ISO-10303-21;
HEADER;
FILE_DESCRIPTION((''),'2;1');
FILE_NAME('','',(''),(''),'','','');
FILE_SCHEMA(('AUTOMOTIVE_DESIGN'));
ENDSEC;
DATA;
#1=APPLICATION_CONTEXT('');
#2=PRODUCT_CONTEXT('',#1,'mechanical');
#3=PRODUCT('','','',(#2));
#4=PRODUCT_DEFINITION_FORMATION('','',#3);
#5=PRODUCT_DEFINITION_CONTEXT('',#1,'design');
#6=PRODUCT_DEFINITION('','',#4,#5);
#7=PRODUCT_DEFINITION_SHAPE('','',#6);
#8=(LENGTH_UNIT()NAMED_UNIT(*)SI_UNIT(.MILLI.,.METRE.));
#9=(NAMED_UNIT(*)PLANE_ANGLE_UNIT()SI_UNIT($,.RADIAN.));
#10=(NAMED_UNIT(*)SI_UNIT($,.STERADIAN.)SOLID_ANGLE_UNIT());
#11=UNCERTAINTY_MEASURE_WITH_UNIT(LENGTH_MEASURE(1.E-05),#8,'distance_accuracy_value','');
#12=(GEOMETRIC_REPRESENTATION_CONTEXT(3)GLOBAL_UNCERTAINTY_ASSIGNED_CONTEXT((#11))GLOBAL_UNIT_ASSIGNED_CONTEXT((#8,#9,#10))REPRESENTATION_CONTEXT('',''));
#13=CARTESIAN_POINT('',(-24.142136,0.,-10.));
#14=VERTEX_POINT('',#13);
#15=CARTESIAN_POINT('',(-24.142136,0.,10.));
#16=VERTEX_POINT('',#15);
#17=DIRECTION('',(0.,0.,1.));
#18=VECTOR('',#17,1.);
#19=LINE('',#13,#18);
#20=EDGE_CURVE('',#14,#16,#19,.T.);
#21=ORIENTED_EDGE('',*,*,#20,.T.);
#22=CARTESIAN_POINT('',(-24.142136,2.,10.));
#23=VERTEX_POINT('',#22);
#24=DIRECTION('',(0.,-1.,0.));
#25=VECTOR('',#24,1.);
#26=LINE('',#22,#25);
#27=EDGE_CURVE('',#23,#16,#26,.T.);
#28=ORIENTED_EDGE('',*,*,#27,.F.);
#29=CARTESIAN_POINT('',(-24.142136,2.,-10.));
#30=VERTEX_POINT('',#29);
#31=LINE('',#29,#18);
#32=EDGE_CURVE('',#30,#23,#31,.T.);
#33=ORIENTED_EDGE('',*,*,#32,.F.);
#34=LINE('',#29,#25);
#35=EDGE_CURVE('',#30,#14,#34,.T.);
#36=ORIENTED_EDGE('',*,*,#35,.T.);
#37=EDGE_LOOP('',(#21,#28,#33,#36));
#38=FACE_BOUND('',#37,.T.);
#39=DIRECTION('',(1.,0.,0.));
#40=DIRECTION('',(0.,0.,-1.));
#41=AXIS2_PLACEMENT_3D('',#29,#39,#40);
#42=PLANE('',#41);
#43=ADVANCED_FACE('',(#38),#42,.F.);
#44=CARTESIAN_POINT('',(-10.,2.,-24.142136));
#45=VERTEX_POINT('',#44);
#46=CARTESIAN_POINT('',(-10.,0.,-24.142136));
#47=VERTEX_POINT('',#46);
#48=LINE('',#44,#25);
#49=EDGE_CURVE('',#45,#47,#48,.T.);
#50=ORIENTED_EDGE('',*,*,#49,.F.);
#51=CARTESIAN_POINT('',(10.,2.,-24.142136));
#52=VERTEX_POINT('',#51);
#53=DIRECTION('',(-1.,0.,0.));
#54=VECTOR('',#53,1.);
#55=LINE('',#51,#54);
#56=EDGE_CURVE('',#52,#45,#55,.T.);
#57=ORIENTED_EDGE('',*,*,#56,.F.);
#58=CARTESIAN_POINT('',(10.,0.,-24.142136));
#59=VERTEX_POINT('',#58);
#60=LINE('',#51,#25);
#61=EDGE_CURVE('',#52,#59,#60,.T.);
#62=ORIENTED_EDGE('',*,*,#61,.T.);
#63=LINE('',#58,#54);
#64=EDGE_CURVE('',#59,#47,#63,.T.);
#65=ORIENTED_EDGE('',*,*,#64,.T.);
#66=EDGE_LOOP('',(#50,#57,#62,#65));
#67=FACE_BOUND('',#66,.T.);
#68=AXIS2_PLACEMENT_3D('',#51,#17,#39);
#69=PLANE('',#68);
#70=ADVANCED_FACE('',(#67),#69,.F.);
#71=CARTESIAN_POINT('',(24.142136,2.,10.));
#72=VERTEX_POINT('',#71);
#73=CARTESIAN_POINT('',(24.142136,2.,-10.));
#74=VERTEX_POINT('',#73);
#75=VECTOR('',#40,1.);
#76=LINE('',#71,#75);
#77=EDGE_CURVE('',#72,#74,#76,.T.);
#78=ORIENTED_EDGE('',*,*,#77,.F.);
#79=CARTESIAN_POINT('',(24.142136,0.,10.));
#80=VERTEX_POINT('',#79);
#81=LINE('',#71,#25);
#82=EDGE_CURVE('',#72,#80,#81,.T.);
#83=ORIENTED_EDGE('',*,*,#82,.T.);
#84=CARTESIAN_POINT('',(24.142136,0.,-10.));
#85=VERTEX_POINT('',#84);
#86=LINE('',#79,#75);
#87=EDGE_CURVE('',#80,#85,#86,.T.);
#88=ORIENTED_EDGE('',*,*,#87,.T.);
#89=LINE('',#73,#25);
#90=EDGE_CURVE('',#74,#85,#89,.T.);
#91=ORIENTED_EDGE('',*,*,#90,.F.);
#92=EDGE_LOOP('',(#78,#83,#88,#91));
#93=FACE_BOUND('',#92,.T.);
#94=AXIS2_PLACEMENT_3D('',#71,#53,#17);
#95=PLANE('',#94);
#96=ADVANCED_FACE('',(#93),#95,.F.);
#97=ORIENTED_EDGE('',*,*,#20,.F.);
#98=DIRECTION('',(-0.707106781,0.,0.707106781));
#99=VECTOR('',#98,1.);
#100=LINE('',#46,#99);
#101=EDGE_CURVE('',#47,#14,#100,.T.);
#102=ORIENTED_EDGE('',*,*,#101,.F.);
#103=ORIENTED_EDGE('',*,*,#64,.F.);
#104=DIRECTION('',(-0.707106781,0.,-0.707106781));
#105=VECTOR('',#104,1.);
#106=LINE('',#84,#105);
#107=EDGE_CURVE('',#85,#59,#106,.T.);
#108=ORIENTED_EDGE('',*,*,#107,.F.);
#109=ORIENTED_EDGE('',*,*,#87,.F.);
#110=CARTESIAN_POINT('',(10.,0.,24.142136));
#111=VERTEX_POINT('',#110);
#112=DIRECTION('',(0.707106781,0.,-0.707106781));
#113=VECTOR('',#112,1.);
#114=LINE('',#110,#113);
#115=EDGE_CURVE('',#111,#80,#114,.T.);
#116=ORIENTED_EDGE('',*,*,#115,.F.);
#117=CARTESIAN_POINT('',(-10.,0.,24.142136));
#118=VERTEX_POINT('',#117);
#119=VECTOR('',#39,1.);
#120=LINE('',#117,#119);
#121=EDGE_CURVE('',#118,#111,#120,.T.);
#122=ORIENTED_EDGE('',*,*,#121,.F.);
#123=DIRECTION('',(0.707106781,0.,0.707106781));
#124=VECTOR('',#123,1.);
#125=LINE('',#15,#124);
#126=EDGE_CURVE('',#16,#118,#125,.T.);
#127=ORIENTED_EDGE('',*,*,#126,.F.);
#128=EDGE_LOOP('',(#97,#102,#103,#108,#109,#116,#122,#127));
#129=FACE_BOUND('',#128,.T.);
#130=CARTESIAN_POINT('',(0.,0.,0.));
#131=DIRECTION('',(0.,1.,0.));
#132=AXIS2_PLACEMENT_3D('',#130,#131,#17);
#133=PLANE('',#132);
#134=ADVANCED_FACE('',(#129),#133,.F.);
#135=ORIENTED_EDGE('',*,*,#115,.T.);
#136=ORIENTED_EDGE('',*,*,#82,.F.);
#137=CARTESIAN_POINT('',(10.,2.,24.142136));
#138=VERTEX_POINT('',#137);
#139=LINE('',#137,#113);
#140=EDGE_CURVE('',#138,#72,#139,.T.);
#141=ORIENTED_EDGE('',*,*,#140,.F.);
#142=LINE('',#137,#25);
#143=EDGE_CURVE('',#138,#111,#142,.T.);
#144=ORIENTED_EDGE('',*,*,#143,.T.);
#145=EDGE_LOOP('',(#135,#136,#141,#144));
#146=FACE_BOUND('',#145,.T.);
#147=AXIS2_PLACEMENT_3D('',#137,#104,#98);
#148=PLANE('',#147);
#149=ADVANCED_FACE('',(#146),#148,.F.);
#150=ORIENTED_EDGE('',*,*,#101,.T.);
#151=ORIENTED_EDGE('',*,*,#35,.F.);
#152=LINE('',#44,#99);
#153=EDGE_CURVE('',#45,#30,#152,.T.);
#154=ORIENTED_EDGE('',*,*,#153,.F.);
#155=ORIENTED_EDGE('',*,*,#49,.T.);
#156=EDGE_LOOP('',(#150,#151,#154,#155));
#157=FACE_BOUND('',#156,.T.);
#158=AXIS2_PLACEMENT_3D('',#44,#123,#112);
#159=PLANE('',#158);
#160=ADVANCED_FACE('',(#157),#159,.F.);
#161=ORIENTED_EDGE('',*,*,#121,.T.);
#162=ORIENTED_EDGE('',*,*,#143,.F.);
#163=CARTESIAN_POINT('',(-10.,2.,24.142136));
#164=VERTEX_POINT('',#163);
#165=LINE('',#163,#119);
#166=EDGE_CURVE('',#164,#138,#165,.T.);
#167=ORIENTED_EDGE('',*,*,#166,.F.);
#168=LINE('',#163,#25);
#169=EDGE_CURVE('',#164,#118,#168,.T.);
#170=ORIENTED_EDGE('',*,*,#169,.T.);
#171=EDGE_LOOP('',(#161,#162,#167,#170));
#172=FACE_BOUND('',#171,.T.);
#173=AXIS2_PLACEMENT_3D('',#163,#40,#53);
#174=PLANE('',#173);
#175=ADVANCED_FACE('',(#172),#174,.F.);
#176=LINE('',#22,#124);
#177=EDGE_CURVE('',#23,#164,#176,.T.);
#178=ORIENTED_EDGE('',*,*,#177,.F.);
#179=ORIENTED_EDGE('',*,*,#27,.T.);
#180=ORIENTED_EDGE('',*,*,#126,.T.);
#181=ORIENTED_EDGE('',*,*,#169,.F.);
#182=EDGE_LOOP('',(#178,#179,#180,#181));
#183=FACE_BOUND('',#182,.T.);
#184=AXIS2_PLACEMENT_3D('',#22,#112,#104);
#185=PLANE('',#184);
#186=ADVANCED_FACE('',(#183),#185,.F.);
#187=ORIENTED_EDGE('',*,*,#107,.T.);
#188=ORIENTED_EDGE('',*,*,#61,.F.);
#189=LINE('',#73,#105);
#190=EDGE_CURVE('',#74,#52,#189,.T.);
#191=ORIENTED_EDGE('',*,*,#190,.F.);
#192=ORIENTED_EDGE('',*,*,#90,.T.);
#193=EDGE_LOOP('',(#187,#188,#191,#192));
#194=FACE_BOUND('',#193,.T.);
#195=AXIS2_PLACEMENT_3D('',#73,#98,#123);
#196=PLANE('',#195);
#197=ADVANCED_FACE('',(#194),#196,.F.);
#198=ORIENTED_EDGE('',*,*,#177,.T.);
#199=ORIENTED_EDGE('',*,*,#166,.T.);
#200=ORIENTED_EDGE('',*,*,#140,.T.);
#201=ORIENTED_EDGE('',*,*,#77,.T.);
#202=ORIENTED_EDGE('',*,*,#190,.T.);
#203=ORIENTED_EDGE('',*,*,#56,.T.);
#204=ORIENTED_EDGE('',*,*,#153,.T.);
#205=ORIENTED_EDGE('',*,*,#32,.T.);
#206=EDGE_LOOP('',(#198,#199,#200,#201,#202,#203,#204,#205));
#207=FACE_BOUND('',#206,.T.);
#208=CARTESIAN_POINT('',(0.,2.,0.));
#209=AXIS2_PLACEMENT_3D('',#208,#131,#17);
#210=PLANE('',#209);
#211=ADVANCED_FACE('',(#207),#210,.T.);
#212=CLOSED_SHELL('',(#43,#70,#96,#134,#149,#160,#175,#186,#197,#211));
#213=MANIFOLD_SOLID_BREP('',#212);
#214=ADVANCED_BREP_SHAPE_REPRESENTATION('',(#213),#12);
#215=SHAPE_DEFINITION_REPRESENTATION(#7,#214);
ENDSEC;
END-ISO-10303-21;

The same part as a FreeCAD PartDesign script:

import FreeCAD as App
import Part
import Sketcher

V = App.Vector
Q = App.Units.Quantity


def add_polygon(sketch, points):
    """Adds a closed chain of lines whose ends are joined by coincident constraints."""
    first, n = sketch.GeometryCount, len(points)
    for a, b in zip(points, points[1:] + points[:1]):
        sketch.addGeometry(Part.LineSegment(App.Vector(*a, 0), App.Vector(*b, 0)), False)
    for i in range(n):
        sketch.addConstraint(Sketcher.Constraint("Coincident", first + i, 2, first + (i + 1) % n, 1))

doc = App.newDocument("Part")
body = doc.addObject("PartDesign::Body", "Body")

# Sketch on XZ plane
sketch1 = body.newObject("Sketcher::SketchObject", "Sketch")
sketch1.AttachmentSupport = (doc.getObject("XZ_Plane"), [""])
sketch1.MapMode = "FlatFace"
add_polygon(sketch1, [(24, -10), (10, -24), (-10, -24), (-24, -10), (-24, 10), (-10, 24), (10, 24), (24, 10)])  # lines 0-7
sketch1.addConstraint([
    Sketcher.Constraint("Horizontal", 1),
    Sketcher.Constraint("Vertical", 3),
    Sketcher.Constraint("Horizontal", 5),
    Sketcher.Constraint("Vertical", 7),
    Sketcher.Constraint("Symmetric", 0, 2, 4, 2, -1, 1),
    Sketcher.Constraint("Symmetric", 2, 2, 6, 2, -1, 1),
    Sketcher.Constraint("Perpendicular", 0, 2),
    Sketcher.Constraint("Perpendicular", 2, 4),
    Sketcher.Constraint("Perpendicular", 4, 6),
    Sketcher.Constraint("Horizontal", 3, 2, 6, 2),
    Sketcher.Constraint("Vertical", 1, 2, 4, 2),
    Sketcher.Constraint("Equal", 5, 3),
    Sketcher.Constraint("DistanceX", 1, 2, 1, 1, Q("20 mm")),
    Sketcher.Constraint("Distance", 0, Q("20 mm")),
])
pad1 = body.newObject("PartDesign::Pad", "Pad")
pad1.Profile = sketch1
pad1.Length = 2
pad1.Reversed = True

doc.recompute()
